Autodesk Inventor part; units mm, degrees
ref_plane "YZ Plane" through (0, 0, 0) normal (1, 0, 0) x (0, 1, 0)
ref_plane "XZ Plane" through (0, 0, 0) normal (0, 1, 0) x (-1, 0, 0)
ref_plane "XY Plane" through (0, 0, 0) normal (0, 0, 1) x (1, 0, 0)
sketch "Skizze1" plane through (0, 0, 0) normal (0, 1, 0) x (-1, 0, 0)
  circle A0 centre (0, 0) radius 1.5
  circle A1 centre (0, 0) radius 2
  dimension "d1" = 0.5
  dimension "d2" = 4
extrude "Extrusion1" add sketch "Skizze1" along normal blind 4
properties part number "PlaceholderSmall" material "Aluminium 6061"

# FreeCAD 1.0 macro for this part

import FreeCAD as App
import Part
import Sketcher

V = App.Vector

doc = App.newDocument("Part")
params = doc.addObject("Spreadsheet::Sheet", "Params")
for row, (alias, value) in enumerate([
    ("sketch1_diameter", "4 mm"),
    ("sketch1_diameter2", "3 mm"),
    ("pad1_length", "4 mm"),
], start=1):
    params.set(f"A{row}", alias)
    params.set(f"B{row}", "=" + value)
    params.setAlias(f"B{row}", alias)

body = doc.addObject("PartDesign::Body", "Body")

# Sketch on XZ plane
sketch1 = doc.addObject("Sketcher::SketchObject", "Sketch")
body.addObject(sketch1)
sketch1.AttachmentSupport = (doc.XZ_Plane, [""])
sketch1.MapMode = "FlatFace"
sketch1.addGeometry([
    Part.Circle(V(0, 0, 0), V(0, 0, 1), 2),
    Part.Circle(V(0, 0, 0), V(0, 0, 1), 1.5),
], False)
sketch1.addConstraint([
    Sketcher.Constraint("Coincident", 0, 3, -1, 1),
    Sketcher.Constraint("Coincident", 1, 3, -1, 1),
    Sketcher.Constraint("Diameter", 0, 4.0),
    Sketcher.Constraint("Diameter", 1, 3.0),
])
sketch1.setExpression("Constraints[2]", "Params.sketch1_diameter")
sketch1.setExpression("Constraints[3]", "Params.sketch1_diameter2")
pad1 = doc.addObject("PartDesign::Pad", "Pad")
body.addObject(pad1)
pad1.Profile = sketch1
pad1.setExpression("Length", "Params.pad1_length")
pad1.Reversed = True

doc.recompute()
